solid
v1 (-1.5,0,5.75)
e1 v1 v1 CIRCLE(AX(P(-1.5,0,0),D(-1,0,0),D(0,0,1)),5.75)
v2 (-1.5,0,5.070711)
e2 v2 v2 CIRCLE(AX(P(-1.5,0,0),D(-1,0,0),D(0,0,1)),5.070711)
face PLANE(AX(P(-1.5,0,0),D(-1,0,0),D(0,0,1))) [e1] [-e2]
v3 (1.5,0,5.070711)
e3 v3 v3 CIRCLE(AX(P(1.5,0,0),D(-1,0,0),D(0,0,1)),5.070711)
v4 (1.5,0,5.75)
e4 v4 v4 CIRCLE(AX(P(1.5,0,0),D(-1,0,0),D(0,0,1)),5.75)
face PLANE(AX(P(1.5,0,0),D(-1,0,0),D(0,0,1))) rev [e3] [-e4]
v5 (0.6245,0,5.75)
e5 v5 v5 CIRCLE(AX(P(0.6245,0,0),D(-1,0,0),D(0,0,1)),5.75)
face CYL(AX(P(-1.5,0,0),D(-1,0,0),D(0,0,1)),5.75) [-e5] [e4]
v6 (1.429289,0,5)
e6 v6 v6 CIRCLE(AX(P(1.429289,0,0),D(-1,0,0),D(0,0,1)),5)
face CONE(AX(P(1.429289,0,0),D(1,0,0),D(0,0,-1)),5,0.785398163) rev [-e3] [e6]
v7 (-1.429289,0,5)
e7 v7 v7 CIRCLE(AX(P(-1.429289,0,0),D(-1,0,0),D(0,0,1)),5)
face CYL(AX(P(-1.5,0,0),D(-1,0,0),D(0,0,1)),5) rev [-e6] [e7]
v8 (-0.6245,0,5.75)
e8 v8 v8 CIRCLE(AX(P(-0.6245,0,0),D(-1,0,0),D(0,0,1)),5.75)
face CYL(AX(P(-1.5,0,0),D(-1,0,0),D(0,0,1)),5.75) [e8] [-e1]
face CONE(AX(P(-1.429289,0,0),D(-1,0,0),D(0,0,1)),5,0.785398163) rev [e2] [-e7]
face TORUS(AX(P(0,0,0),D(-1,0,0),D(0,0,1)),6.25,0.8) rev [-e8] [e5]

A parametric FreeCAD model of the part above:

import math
import FreeCAD as App
import Part
import Sketcher

V = App.Vector
Q = App.Units.Quantity

doc = App.newDocument("Part")
body = doc.addObject("PartDesign::Body", "Body")

sketch1 = body.newObject("Sketcher::SketchObject", "Sketch")
sketch1.AttachmentSupport = (doc.getObject("XY_Plane"), [""])
sketch1.MapMode = "FlatFace"
sketch1.addGeometry([
    Part.LineSegment(V(-1.43, 5, 0), V(1.43, 5, 0)),
    Part.LineSegment(V(1.43, 5, 0), V(1.5, 5.07, 0)),
    Part.LineSegment(V(1.5, 5.07, 0), V(1.5, 5.75, 0)),
    Part.LineSegment(V(1.5, 5.75, 0), V(0.62, 5.75, 0)),
    Part.ArcOfCircle(Part.Circle(V(0, 6.25, 0), V(0, 0, 1), 0.8), math.radians(-141), math.radians(-39)),
    Part.LineSegment(V(-0.62, 5.75, 0), V(-1.5, 5.75, 0)),
    Part.LineSegment(V(-1.5, 5.75, 0), V(-1.5, 5.07, 0)),
    Part.LineSegment(V(-1.5, 5.07, 0), V(-1.43, 5, 0)),
], False)
sketch1.addConstraint([
    Sketcher.Constraint("Coincident", 0, 2, 1, 1),
    Sketcher.Constraint("Coincident", 1, 2, 2, 1),
    Sketcher.Constraint("Coincident", 2, 2, 3, 1),
    Sketcher.Constraint("Coincident", 3, 2, 4, 2),
    Sketcher.Constraint("Coincident", 4, 1, 5, 1),
    Sketcher.Constraint("Coincident", 5, 2, 6, 1),
    Sketcher.Constraint("Coincident", 6, 2, 7, 1),
    Sketcher.Constraint("Coincident", 7, 2, 0, 1),
    Sketcher.Constraint("Horizontal", 0),
    Sketcher.Constraint("Vertical", 2),
    Sketcher.Constraint("Horizontal", 3),
    Sketcher.Constraint("Horizontal", 5),
    Sketcher.Constraint("Vertical", 6),
    Sketcher.Constraint("Symmetric", 3, 2, 4, 1, -2),
    Sketcher.Constraint("Symmetric", 1, 2, 6, 2, -2),
    Sketcher.Constraint("Perpendicular", 1, 7),
    Sketcher.Constraint("Equal", 1, 7),
    Sketcher.Constraint("Radius", 4, Q("0.8 mm")),
    Sketcher.Constraint("DistanceY", -1, 1, 0, 2, Q("5 mm")),
    Sketcher.Constraint("DistanceX", 5, 2, 2, 2, Q("3 mm")),
    Sketcher.Constraint("Distance", 1, Q("0.1 mm")),
    Sketcher.Constraint("DistanceY", 2, 2, 4, 3, Q("0.5 mm")),
    Sketcher.Constraint("DistanceY", -1, 1, 4, 3, Q("6.25 mm")),
])
revolution = body.newObject("PartDesign::Revolution", "Revolution")
revolution.Profile = sketch1
revolution.ReferenceAxis = (sketch1, ["H_Axis"])
revolution.Angle = 360

doc.recompute()
